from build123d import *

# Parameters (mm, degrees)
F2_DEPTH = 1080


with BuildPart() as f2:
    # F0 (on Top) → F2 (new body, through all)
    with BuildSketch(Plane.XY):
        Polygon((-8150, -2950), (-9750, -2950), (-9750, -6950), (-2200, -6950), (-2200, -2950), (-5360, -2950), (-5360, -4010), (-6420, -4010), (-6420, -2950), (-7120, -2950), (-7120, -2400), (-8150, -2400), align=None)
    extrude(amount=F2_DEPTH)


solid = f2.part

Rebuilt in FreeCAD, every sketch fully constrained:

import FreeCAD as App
import Part
import Sketcher

V = App.Vector
Q = App.Units.Quantity


def add_polygon(sketch, points):
    """Adds a closed chain of lines whose ends are joined by coincident constraints."""
    first, n = sketch.GeometryCount, len(points)
    for a, b in zip(points, points[1:] + points[:1]):
        sketch.addGeometry(Part.LineSegment(App.Vector(*a, 0), App.Vector(*b, 0)), False)
    for i in range(n):
        sketch.addConstraint(Sketcher.Constraint("Coincident", first + i, 2, first + (i + 1) % n, 1))

doc = App.newDocument("Part")
params = doc.addObject("Spreadsheet::Sheet", "Params")
for row, (alias, value) in enumerate([
    ("sketch1_width", "1600 mm"),
    ("sketch1_width2", "7550 mm"),
    ("sketch1_width3", "3160 mm"),
    ("sketch1_width4", "1060 mm"),
    ("sketch1_width5", "700 mm"),
    ("pad1_length", "1080 mm"),
], start=1):
    params.set(f"A{row}", alias)
    params.set(f"B{row}", "=" + value)
    params.setAlias(f"B{row}", alias)

body = doc.addObject("PartDesign::Body", "Body")

sketch1 = body.newObject("Sketcher::SketchObject", "Sketch")
sketch1.AttachmentSupport = (doc.getObject("XY_Plane"), [""])
sketch1.MapMode = "FlatFace"
add_polygon(sketch1, [(-8150, -2950), (-9750, -2950), (-9750, -6950), (-2200, -6950), (-2200, -2950), (-5360, -2950), (-5360, -4010), (-6420, -4010), (-6420, -2950), (-7120, -2950), (-7120, -2400), (-8150, -2400)])
sketch1.addConstraint(Sketcher.Constraint("Horizontal", 0))
sketch1.addConstraint(Sketcher.Constraint("Vertical", 1))
sketch1.addConstraint(Sketcher.Constraint("Horizontal", 2))
sketch1.addConstraint(Sketcher.Constraint("Vertical", 3))
sketch1.addConstraint(Sketcher.Constraint("Horizontal", 4))
sketch1.addConstraint(Sketcher.Constraint("Vertical", 5))
sketch1.addConstraint(Sketcher.Constraint("Horizontal", 6))
sketch1.addConstraint(Sketcher.Constraint("Vertical", 7))
sketch1.addConstraint(Sketcher.Constraint("Horizontal", 8))
sketch1.addConstraint(Sketcher.Constraint("Vertical", 9))
sketch1.addConstraint(Sketcher.Constraint("Horizontal", 10))
sketch1.addConstraint(Sketcher.Constraint("Vertical", 11))
sketch1.addConstraint(Sketcher.Constraint("Horizontal", 0, 2, 3, 2))
sketch1.addConstraint(Sketcher.Constraint("Horizontal", 4, 2, 7, 2))
sketch1.addConstraint(Sketcher.Constraint("Equal", 6, 5))
sketch1.addConstraint(Sketcher.Constraint("DistanceX", 0, 2, 0, 1, Q("1600 mm")))
sketch1.addConstraint(Sketcher.Constraint("DistanceX", 2, 1, 2, 2, Q("7550 mm")))
sketch1.addConstraint(Sketcher.Constraint("DistanceX", 4, 2, 4, 1, Q("3160 mm")))
sketch1.addConstraint(Sketcher.Constraint("DistanceX", 6, 2, 6, 1, Q("1060 mm")))
sketch1.addConstraint(Sketcher.Constraint("DistanceX", 8, 2, 8, 1, Q("700 mm")))
sketch1.addConstraint(Sketcher.Constraint("DistanceY", 1, 2, 1, 1, Q("4000 mm")))
sketch1.addConstraint(Sketcher.Constraint("DistanceY", 9, 1, 9, 2, Q("550 mm")))
sketch1.addConstraint(Sketcher.Constraint("DistanceX", 0, 2, -1, 1, Q("9750 mm")))
sketch1.addConstraint(Sketcher.Constraint("DistanceY", 0, 2, -1, 1, Q("2950 mm")))
sketch1.setExpression("Constraints[27]", "Params.sketch1_width")
sketch1.setExpression("Constraints[28]", "Params.sketch1_width2")
sketch1.setExpression("Constraints[29]", "Params.sketch1_width3")
sketch1.setExpression("Constraints[30]", "Params.sketch1_width4")
sketch1.setExpression("Constraints[31]", "Params.sketch1_width5")
pad1 = body.newObject("PartDesign::Pad", "Pad")
pad1.Profile = sketch1
pad1.setExpression("Length", "Params.pad1_length")

doc.recompute()
